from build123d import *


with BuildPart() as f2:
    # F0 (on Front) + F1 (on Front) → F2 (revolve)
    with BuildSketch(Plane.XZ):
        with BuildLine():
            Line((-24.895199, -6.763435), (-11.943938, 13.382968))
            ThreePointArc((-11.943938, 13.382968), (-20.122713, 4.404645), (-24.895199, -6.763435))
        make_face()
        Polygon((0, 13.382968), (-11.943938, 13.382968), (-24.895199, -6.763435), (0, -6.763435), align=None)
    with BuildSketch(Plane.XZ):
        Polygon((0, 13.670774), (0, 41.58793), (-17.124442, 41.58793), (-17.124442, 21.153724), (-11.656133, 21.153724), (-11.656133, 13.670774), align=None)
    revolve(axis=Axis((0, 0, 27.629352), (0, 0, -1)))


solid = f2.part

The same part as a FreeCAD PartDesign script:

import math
import FreeCAD as App
import Part
import Sketcher
from FreeCAD import Vector

doc = App.newDocument("Part")
body = doc.addObject("PartDesign::Body", "Body")
body.AllowCompound = True

# Sketch on XZ plane
sketch1 = doc.addObject("Sketcher::SketchObject", "Sketch")
body.addObject(sketch1)
sketch1.AttachmentSupport = (doc.XZ_Plane, [""])
sketch1.MapMode = "FlatFace"
sketch1.addGeometry([
    Part.ArcOfCircle(Part.Circle(Vector(11, -15, 0), Vector(0, 0, 1), 36), math.radians(128), math.radians(166)),  # 0
    Part.LineSegment(Vector(-25, -7, 0), Vector(0, -7, 0)),  # 1
    Part.LineSegment(Vector(0, -7, 0), Vector(0, 13, 0)),  # 2
    Part.LineSegment(Vector(0, 13, 0), Vector(-12, 13, 0)),  # 3
    Part.LineSegment(Vector(0, 14, 0), Vector(0, 42, 0)),  # 4
    Part.LineSegment(Vector(0, 42, 0), Vector(-17, 42, 0)),  # 5
    Part.LineSegment(Vector(-17, 42, 0), Vector(-17, 21, 0)),  # 6
    Part.LineSegment(Vector(-17, 21, 0), Vector(-12, 21, 0)),  # 7
    Part.LineSegment(Vector(-12, 21, 0), Vector(-12, 14, 0)),  # 8
    Part.LineSegment(Vector(-12, 14, 0), Vector(0, 14, 0)),  # 9
], False)
sketch1.addConstraint([
    Sketcher.Constraint("Coincident", 0, 2, 1, 1),
    Sketcher.Constraint("Coincident", 1, 2, 2, 1),
    Sketcher.Constraint("Coincident", 2, 2, 3, 1),
    Sketcher.Constraint("Coincident", 3, 2, 0, 1),
    Sketcher.Constraint("Coincident", 4, 2, 5, 1),
    Sketcher.Constraint("Coincident", 5, 2, 6, 1),
    Sketcher.Constraint("Coincident", 6, 2, 7, 1),
    Sketcher.Constraint("Coincident", 7, 2, 8, 1),
    Sketcher.Constraint("Coincident", 8, 2, 9, 1),
    Sketcher.Constraint("Coincident", 9, 2, 4, 1),
    Sketcher.Constraint("Horizontal", 1),
    Sketcher.Constraint("Vertical", 2),
    Sketcher.Constraint("Horizontal", 3),
    Sketcher.Constraint("Vertical", 4),
    Sketcher.Constraint("Horizontal", 5),
    Sketcher.Constraint("Vertical", 6),
    Sketcher.Constraint("Horizontal", 7),
    Sketcher.Constraint("Vertical", 8),
    Sketcher.Constraint("Horizontal", 9),
    Sketcher.Constraint("PointOnObject", 1, 2, -2),
    Sketcher.Constraint("PointOnObject", 4, 2, -2),
    Sketcher.Constraint("Radius", 0, 36.425579),
    Sketcher.Constraint("DistanceX", 1, 1, 1, 2, 24.895199),
    Sketcher.Constraint("DistanceX", 5, 2, 5, 1, 17.124442),
    Sketcher.Constraint("DistanceX", 7, 1, 7, 2, 5.468309),
    Sketcher.Constraint("DistanceY", 8, 2, 8, 1, 7.48295),
    Sketcher.Constraint("DistanceX", -1, 1, 0, 3, 10.517699),
    Sketcher.Constraint("DistanceX", 3, 2, 3, 1, 11.943938),
    Sketcher.Constraint("DistanceY", 4, 1, 4, 2, 27.917156),
    Sketcher.Constraint("DistanceY", -1, 1, 4, 2, 41.58793),
    Sketcher.Constraint("DistanceY", 0, 2, 6, 2, 27.917159),
])
revolution = doc.addObject("PartDesign::Revolution", "Revolution")
body.addObject(revolution)
revolution.Profile = sketch1
revolution.ReferenceAxis = (sketch1, ["V_Axis"])
revolution.Angle = 360

doc.recompute()
